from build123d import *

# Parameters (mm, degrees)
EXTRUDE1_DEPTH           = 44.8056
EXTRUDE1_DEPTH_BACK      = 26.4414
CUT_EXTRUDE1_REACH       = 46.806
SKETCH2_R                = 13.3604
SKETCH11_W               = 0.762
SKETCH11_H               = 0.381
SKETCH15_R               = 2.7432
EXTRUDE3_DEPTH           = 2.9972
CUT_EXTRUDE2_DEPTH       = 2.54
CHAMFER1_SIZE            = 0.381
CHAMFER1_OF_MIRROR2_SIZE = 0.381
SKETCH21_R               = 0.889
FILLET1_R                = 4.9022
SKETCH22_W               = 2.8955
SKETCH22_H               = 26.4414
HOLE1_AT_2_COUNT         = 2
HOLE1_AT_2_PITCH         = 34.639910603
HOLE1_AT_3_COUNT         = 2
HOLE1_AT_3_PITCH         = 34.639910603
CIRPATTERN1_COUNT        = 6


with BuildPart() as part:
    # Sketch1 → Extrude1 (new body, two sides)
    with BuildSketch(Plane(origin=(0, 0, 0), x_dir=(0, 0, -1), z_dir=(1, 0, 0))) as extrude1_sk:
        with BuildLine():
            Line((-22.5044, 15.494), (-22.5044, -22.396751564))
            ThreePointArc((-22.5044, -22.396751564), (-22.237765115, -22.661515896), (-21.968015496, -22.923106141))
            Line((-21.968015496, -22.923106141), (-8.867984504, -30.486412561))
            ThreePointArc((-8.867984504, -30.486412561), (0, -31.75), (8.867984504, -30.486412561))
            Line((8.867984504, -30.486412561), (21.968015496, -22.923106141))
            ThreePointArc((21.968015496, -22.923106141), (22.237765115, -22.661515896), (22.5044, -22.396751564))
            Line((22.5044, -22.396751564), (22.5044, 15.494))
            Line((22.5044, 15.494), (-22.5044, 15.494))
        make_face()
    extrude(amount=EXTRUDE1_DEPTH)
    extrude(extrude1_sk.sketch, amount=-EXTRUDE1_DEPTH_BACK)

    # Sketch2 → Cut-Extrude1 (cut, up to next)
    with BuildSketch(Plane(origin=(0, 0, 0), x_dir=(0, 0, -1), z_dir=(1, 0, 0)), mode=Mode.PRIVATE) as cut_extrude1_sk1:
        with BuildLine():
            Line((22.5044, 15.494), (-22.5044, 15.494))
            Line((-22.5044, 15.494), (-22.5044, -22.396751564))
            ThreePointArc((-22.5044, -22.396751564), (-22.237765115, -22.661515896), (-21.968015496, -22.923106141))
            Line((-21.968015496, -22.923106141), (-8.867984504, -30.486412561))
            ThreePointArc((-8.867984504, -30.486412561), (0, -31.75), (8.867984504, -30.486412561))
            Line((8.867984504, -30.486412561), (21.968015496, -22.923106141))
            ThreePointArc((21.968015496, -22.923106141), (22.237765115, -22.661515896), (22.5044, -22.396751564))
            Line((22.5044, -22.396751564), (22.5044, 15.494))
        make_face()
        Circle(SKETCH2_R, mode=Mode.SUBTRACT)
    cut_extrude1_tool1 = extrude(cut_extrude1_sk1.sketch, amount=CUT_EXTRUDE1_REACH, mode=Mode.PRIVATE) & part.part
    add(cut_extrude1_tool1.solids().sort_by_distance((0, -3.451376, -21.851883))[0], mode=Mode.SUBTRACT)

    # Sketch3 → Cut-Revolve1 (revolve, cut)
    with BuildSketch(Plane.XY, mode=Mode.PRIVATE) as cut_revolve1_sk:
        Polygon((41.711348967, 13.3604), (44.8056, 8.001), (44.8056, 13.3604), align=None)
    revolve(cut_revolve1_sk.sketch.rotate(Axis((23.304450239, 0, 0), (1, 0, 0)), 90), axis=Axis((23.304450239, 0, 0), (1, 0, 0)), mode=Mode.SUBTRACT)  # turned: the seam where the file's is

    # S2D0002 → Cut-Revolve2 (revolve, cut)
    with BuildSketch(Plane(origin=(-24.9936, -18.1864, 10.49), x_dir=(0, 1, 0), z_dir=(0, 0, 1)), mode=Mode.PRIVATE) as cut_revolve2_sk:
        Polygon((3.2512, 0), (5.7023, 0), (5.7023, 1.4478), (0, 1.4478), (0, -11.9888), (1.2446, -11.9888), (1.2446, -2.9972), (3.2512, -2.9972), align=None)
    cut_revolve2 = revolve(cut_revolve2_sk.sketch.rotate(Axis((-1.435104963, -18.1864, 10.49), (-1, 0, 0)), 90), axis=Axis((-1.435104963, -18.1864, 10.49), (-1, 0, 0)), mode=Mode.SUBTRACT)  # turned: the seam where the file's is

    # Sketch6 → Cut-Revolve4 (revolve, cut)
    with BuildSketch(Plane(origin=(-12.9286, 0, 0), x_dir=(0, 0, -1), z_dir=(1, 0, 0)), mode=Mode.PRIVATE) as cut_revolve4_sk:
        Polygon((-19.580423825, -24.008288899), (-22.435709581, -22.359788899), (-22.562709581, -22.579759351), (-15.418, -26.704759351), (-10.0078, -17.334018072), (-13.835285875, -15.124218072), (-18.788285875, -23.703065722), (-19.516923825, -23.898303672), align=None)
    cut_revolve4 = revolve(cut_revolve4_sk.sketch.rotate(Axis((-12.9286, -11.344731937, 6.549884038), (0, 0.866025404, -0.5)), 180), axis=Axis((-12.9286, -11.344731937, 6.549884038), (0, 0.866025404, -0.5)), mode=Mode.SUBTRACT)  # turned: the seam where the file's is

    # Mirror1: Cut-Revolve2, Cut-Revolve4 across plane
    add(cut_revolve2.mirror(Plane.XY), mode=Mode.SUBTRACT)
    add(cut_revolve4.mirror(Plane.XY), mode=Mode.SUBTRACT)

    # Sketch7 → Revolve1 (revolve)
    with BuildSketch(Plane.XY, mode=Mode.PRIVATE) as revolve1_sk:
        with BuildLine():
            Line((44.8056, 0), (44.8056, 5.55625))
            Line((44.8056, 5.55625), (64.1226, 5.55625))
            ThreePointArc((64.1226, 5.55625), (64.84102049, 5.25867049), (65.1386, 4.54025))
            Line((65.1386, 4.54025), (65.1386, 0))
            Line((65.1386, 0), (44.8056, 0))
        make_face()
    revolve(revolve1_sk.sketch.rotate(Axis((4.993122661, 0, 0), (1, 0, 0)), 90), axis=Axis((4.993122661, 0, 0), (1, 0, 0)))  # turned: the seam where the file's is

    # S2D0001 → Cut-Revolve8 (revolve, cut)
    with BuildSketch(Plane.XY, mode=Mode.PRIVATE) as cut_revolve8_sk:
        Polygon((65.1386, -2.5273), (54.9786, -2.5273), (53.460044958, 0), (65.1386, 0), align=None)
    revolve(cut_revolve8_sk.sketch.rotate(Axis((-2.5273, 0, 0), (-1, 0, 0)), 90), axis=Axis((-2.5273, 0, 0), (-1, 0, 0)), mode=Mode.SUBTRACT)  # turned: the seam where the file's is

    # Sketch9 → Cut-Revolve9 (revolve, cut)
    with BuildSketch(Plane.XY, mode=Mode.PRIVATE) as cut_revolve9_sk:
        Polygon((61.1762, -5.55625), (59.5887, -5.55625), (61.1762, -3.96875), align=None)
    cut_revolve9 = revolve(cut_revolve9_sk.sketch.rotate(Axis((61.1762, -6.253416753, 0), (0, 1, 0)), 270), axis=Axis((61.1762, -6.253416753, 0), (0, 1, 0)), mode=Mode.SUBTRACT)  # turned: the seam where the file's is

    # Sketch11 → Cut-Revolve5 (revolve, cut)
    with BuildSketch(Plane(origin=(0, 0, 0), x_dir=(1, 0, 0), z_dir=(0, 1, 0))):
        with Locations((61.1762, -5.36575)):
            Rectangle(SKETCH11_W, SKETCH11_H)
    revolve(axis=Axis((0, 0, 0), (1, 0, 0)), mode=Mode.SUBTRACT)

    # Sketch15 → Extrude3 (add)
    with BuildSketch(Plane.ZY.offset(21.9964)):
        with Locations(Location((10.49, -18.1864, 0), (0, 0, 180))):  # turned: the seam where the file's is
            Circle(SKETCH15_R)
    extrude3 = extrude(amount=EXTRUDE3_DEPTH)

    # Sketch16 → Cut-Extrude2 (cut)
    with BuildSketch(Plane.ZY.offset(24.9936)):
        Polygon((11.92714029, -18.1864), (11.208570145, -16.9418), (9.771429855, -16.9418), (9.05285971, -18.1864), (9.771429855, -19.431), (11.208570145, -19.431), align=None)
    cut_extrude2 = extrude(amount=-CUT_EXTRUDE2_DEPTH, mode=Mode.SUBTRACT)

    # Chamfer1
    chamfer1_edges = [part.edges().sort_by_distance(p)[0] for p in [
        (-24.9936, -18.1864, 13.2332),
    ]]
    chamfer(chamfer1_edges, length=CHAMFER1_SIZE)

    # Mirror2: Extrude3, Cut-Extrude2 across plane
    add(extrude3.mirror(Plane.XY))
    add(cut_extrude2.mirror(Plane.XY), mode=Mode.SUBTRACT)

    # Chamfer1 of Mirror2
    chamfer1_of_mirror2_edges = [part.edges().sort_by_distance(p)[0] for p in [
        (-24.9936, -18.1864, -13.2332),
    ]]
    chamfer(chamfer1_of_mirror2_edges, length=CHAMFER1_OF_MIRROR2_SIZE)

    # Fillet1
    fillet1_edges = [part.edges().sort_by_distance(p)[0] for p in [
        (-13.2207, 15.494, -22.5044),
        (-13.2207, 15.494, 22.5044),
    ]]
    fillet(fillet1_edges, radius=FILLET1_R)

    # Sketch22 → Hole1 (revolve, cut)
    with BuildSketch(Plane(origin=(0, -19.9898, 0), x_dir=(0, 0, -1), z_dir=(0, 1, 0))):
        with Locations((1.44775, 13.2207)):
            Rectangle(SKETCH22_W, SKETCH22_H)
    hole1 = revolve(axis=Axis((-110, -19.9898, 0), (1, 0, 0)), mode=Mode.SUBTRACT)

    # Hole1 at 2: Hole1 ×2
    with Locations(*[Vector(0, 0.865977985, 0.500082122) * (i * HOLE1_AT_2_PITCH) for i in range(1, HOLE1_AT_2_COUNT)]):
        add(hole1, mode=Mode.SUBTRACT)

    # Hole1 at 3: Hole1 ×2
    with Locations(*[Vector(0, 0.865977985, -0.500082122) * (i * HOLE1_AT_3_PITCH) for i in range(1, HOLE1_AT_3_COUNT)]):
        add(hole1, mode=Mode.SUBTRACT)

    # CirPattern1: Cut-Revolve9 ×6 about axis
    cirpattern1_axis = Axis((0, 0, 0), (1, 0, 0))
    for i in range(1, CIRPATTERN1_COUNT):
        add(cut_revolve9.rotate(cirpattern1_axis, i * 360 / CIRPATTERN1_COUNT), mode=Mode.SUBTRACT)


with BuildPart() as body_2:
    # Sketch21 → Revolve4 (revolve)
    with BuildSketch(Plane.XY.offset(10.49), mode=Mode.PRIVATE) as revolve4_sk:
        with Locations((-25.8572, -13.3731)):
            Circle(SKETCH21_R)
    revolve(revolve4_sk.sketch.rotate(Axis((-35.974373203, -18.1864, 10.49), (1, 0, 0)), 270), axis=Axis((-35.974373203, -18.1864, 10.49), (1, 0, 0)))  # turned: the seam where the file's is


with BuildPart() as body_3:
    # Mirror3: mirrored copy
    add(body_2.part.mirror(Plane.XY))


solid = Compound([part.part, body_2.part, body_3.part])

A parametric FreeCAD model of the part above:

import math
import FreeCAD as App
import Part
import Sketcher
Q = App.Units.Quantity


def edges_at(feature, points):
    """Names of the edges that pass closest to the given points."""
    edges = feature.Shape.Edges
    near = lambda p: min(range(len(edges)), key=lambda i: edges[i].distToShape(Part.Vertex(*p))[0])
    return sorted({f"Edge{near(p) + 1}" for p in points})

doc = App.newDocument("Part")
body = doc.addObject("PartDesign::Body", "Body")

sketch1 = body.newObject("Sketcher::SketchObject", "Sketch")
sketch1.AttachmentSupport = (doc.getObject("YZ_Plane"), [""])
sketch1.MapMode = "FlatFace"
sketch1.addGeometry([
    Part.LineSegment(App.Vector(15.494, 22.5044, 0), App.Vector(-22.396752, 22.5044, 0)),
    Part.ArcOfCircle(Part.Circle(App.Vector(-0.000005, 0.000005, 0), App.Vector(0, 0, 1), 31.749993), math.radians(134.862636), math.radians(136.218825)),
    Part.LineSegment(App.Vector(-22.923106, 21.968015, 0), App.Vector(-30.486413, 8.867985, 0)),
    Part.ArcOfCircle(Part.Circle(App.Vector(0, 0, 0), App.Vector(0, 0, 1), 31.75), math.radians(163.781175), math.radians(196.218825)),
    Part.LineSegment(App.Vector(-30.486413, -8.867985, 0), App.Vector(-22.923106, -21.968015, 0)),
    Part.ArcOfCircle(Part.Circle(App.Vector(-0.000005, -0.000005, 0), App.Vector(0, 0, 1), 31.749993), math.radians(-136.218825), math.radians(-134.862636)),
    Part.LineSegment(App.Vector(-22.396752, -22.5044, 0), App.Vector(15.494, -22.5044, 0)),
    Part.LineSegment(App.Vector(15.494, -22.5044, 0), App.Vector(15.494, 22.5044, 0)),
], False)
sketch1.addConstraint([
    Sketcher.Constraint("Coincident", 0, 2, 1, 1),
    Sketcher.Constraint("Coincident", 1, 2, 2, 1),
    Sketcher.Constraint("Coincident", 2, 2, 3, 1),
    Sketcher.Constraint("Coincident", 3, 2, 4, 1),
    Sketcher.Constraint("Coincident", 4, 2, 5, 1),
    Sketcher.Constraint("Coincident", 5, 2, 6, 1),
    Sketcher.Constraint("Coincident", 6, 2, 7, 1),
    Sketcher.Constraint("Coincident", 7, 2, 0, 1),
    Sketcher.Constraint("Horizontal", 0),
    Sketcher.Constraint("Horizontal", 6),
    Sketcher.Constraint("Vertical", 7),
    Sketcher.Constraint("Coincident", 1, 3, -1, 1),
    Sketcher.Constraint("Coincident", 3, 3, -1, 1),
    Sketcher.Constraint("Coincident", 5, 3, -1, 1),
    Sketcher.Constraint("Radius", 3, Q("1.25 in")),
    Sketcher.Constraint("DistanceY", 7, 1, 7, 2, Q("1.772 in")),
    Sketcher.Constraint("DistanceX", -1, 1, 6, 2, Q("0.61 in")),
    Sketcher.Constraint("DistanceY", -1, 1, 0, 2, Q("0.886 in")),
    Sketcher.Constraint("Radius", 1, 31.749993),
    Sketcher.Constraint("Radius", 5, 31.749993),
    Sketcher.Constraint("DistanceX", 1, 2, 1, 3, 22.923101),
    Sketcher.Constraint("DistanceY", 3, 2, 1, 2, 30.836),
    Sketcher.Constraint("DistanceX", 4, 2, 5, 3, 22.923101),
    Sketcher.Constraint("DistanceY", 4, 2, 2, 2, 30.836),
])
pad1 = body.newObject("PartDesign::Pad", "Pad")
pad1.Profile = sketch1
pad1.Type = "TwoLengths"
pad1.Length = Q("1.764 in")
pad1.Length2 = Q("1.041 in")

sketch2 = body.newObject("Sketcher::SketchObject", "Sketch001")
sketch2.AttachmentSupport = (doc.getObject("YZ_Plane"), [""])
sketch2.MapMode = "FlatFace"
sketch2.addGeometry([
    Part.LineSegment(App.Vector(15.494, -22.5044, 0), App.Vector(15.494, 22.5044, 0)),
    Part.LineSegment(App.Vector(15.494, 22.5044, 0), App.Vector(-22.396752, 22.5044, 0)),
    Part.ArcOfCircle(Part.Circle(App.Vector(-0.000005, 0.000005, 0), App.Vector(0, 0, 1), 31.749993), math.radians(134.862636), math.radians(136.218825)),
    Part.LineSegment(App.Vector(-22.923106, 21.968015, 0), App.Vector(-30.486413, 8.867985, 0)),
    Part.ArcOfCircle(Part.Circle(App.Vector(0, 0, 0), App.Vector(0, 0, 1), 31.75), math.radians(163.781175), math.radians(196.218825)),
    Part.LineSegment(App.Vector(-30.486413, -8.867985, 0), App.Vector(-22.923106, -21.968015, 0)),
    Part.ArcOfCircle(Part.Circle(App.Vector(-0.000005, -0.000005, 0), App.Vector(0, 0, 1), 31.749993), math.radians(-136.218825), math.radians(-134.862636)),
    Part.LineSegment(App.Vector(-22.396752, -22.5044, 0), App.Vector(15.494, -22.5044, 0)),
    Part.Circle(App.Vector(0, 0, 0), App.Vector(0, 0, 1), 13.3604),
], False)
sketch2.addConstraint([
    Sketcher.Constraint("Coincident", 0, 2, 1, 1),
    Sketcher.Constraint("Coincident", 1, 2, 2, 1),
    Sketcher.Constraint("Coincident", 2, 2, 3, 1),
    Sketcher.Constraint("Coincident", 3, 2, 4, 1),
    Sketcher.Constraint("Coincident", 4, 2, 5, 1),
    Sketcher.Constraint("Coincident", 5, 2, 6, 1),
    Sketcher.Constraint("Coincident", 6, 2, 7, 1),
    Sketcher.Constraint("Coincident", 7, 2, 0, 1),
    Sketcher.Constraint("Vertical", 0),
    Sketcher.Constraint("Horizontal", 1),
    Sketcher.Constraint("Horizontal", 7),
    Sketcher.Constraint("Coincident", 2, 3, -1, 1),
    Sketcher.Constraint("Coincident", 4, 3, -1, 1),
    Sketcher.Constraint("Coincident", 6, 3, -1, 1),
    Sketcher.Constraint("Coincident", 8, 3, -1, 1),
    Sketcher.Constraint("Radius", 4, Q("1.25 in")),
    Sketcher.Constraint("Diameter", 8, Q("1.052 in")),
    Sketcher.Constraint("DistanceY", 0, 1, 0, 2, Q("1.772 in")),
    Sketcher.Constraint("DistanceX", -1, 1, 0, 2, Q("0.61 in")),
    Sketcher.Constraint("DistanceY", -1, 1, 0, 2, Q("0.886 in")),
    Sketcher.Constraint("Radius", 2, 31.749993),
    Sketcher.Constraint("Radius", 6, 31.749993),
    Sketcher.Constraint("DistanceX", 2, 2, 2, 3, 22.923101),
    Sketcher.Constraint("DistanceY", 4, 2, 2, 2, 30.836),
    Sketcher.Constraint("DistanceX", 5, 2, 6, 3, 22.923101),
    Sketcher.Constraint("DistanceY", 5, 2, 3, 2, 30.836),
])
pocket1 = body.newObject("PartDesign::Pocket", "Pocket")
pocket1.Profile = sketch2
pocket1.Type = "UpToFirst"
pocket1.Reversed = True

sketch3 = body.newObject("Sketcher::SketchObject", "Sketch002")
sketch3.AttachmentSupport = (doc.getObject("XY_Plane"), [""])
sketch3.MapMode = "FlatFace"
sketch3.addGeometry([
    Part.LineSegment(App.Vector(41.7, 13.4, 0), App.Vector(44.8, 8, 0)),
    Part.LineSegment(App.Vector(44.8, 8, 0), App.Vector(44.8, 13.4, 0)),
    Part.LineSegment(App.Vector(44.8, 13.4, 0), App.Vector(41.7, 13.4, 0)),
], False)
sketch3.addConstraint([
    Sketcher.Constraint("Coincident", 0, 2, 1, 1),
    Sketcher.Constraint("Coincident", 1, 2, 2, 1),
    Sketcher.Constraint("Coincident", 2, 2, 0, 1),
    Sketcher.Constraint("Vertical", 1),
    Sketcher.Constraint("Horizontal", 2),
    Sketcher.Constraint("Angle", 0, Q("-60 deg")),
    Sketcher.Constraint("DistanceY", 1, 1, 1, 2, Q("0.211 in")),
    Sketcher.Constraint("DistanceX", -1, 1, 0, 2, Q("1.764 in")),
    Sketcher.Constraint("DistanceY", -1, 1, 0, 2, Q("0.315 in")),
])
groove = body.newObject("PartDesign::Groove", "Groove")
groove.Profile = sketch3
groove.ReferenceAxis = (sketch3, ["H_Axis"])
groove.Angle = 360

sketch4 = body.newObject("Sketcher::SketchObject", "Sketch003")
sketch4.AttachmentSupport = (doc.getObject("XY_Plane"), [""])
sketch4.MapMode = "FlatFace"
sketch4.AttachmentOffset = App.Placement(App.Vector(0, 0, 10.49), App.Rotation())
sketch4.addGeometry([
    Part.LineSegment(App.Vector(-25, -14.9, 0), App.Vector(-25, -12.5, 0)),
    Part.LineSegment(App.Vector(-25, -12.5, 0), App.Vector(-26.4, -12.5, 0)),
    Part.LineSegment(App.Vector(-26.4, -12.5, 0), App.Vector(-26.4, -18.2, 0)),
    Part.LineSegment(App.Vector(-26.4, -18.2, 0), App.Vector(-13, -18.2, 0)),
    Part.LineSegment(App.Vector(-13, -18.2, 0), App.Vector(-13, -16.9, 0)),
    Part.LineSegment(App.Vector(-13, -16.9, 0), App.Vector(-22, -16.9, 0)),
    Part.LineSegment(App.Vector(-22, -16.9, 0), App.Vector(-22, -14.9, 0)),
    Part.LineSegment(App.Vector(-22, -14.9, 0), App.Vector(-25, -14.9, 0)),
], False)
sketch4.addGeometry(Part.LineSegment(App.Vector(-13, -18.2, 0), App.Vector(-26.4, -18.2, 0)), True)
sketch4.addConstraint([
    Sketcher.Constraint("Coincident", 0, 2, 1, 1),
    Sketcher.Constraint("Coincident", 1, 2, 2, 1),
    Sketcher.Constraint("Coincident", 2, 2, 3, 1),
    Sketcher.Constraint("Coincident", 3, 2, 4, 1),
    Sketcher.Constraint("Coincident", 4, 2, 5, 1),
    Sketcher.Constraint("Coincident", 5, 2, 6, 1),
    Sketcher.Constraint("Coincident", 6, 2, 7, 1),
    Sketcher.Constraint("Coincident", 7, 2, 0, 1),
    Sketcher.Constraint("Vertical", 0),
    Sketcher.Constraint("Horizontal", 1),
    Sketcher.Constraint("Vertical", 2),
    Sketcher.Constraint("Horizontal", 3),
    Sketcher.Constraint("Vertical", 4),
    Sketcher.Constraint("Horizontal", 5),
    Sketcher.Constraint("Vertical", 6),
    Sketcher.Constraint("Horizontal", 7),
    Sketcher.Constraint("Horizontal", 8),
    Sketcher.Constraint("Coincident", 8, 1, 3, 2),
    Sketcher.Constraint("Vertical", 1, 2, 8, 2),
    Sketcher.Constraint("DistanceX", 1, 2, 1, 1, Q("0.057 in")),
    Sketcher.Constraint("DistanceX", 3, 1, 3, 2, Q("0.529 in")),
    Sketcher.Constraint("DistanceX", 5, 2, 5, 1, Q("0.354 in")),
    Sketcher.Constraint("DistanceY", 4, 1, 4, 2, Q("0.049 in")),
    Sketcher.Constraint("DistanceY", 6, 1, 6, 2, Q("0.079 in")),
    Sketcher.Constraint("DistanceY", 0, 1, 0, 2, Q("0.0965 in")),
    Sketcher.Constraint("DistanceX", 0, 2, -1, 1, Q("0.984 in")),
    Sketcher.Constraint("DistanceY", 2, 2, -1, 1, Q("0.716 in")),
])
groove2 = body.newObject("PartDesign::Groove", "Groove001")
groove2.Profile = sketch4
groove2.ReferenceAxis = (sketch4, ["Axis0"])
groove2.Angle = 360

sketch5 = body.newObject("Sketcher::SketchObject", "Sketch004")
sketch5.AttachmentSupport = (doc.getObject("YZ_Plane"), [""])
sketch5.MapMode = "FlatFace"
sketch5.AttachmentOffset = App.Placement(App.Vector(0, 0, -0.509 * 25.4), App.Rotation())
sketch5.addGeometry([
    Part.LineSegment(App.Vector(-24.01, 19.58, 0), App.Vector(-22.36, 22.44, 0)),
    Part.LineSegment(App.Vector(-22.36, 22.44, 0), App.Vector(-22.58, 22.56, 0)),
    Part.LineSegment(App.Vector(-22.58, 22.56, 0), App.Vector(-26.7, 15.42, 0)),
    Part.LineSegment(App.Vector(-26.7, 15.42, 0), App.Vector(-17.33, 10.01, 0)),
    Part.LineSegment(App.Vector(-17.33, 10.01, 0), App.Vector(-15.12, 13.84, 0)),
    Part.LineSegment(App.Vector(-15.12, 13.84, 0), App.Vector(-23.7, 18.79, 0)),
    Part.LineSegment(App.Vector(-23.7, 18.79, 0), App.Vector(-23.9, 19.52, 0)),
    Part.LineSegment(App.Vector(-23.9, 19.52, 0), App.Vector(-24.01, 19.58, 0)),
], False)
sketch5.addGeometry(Part.LineSegment(App.Vector(-26.7, 15.42, 0), App.Vector(-17.33, 10.01, 0)), True)
sketch5.addConstraint([
    Sketcher.Constraint("Coincident", 0, 2, 1, 1),
    Sketcher.Constraint("Coincident", 1, 2, 2, 1),
    Sketcher.Constraint("Coincident", 2, 2, 3, 1),
    Sketcher.Constraint("Coincident", 3, 2, 4, 1),
    Sketcher.Constraint("Coincident", 4, 2, 5, 1),
    Sketcher.Constraint("Coincident", 5, 2, 6, 1),
    Sketcher.Constraint("Coincident", 6, 2, 7, 1),
    Sketcher.Constraint("Coincident", 7, 2, 0, 1),
    Sketcher.Constraint("Coincident", 8, 1, 2, 2),
    Sketcher.Constraint("Coincident", 8, 2, 3, 2),
    Sketcher.Constraint("Perpendicular", 0, 1),
    Sketcher.Constraint("Perpendicular", 1, 2),
    Sketcher.Constraint("Perpendicular", 2, 3),
    Sketcher.Constraint("Perpendicular", 3, 4),
    Sketcher.Constraint("Perpendicular", 4, 5),
    Sketcher.Constraint("Parallel", 5, 7),
    Sketcher.Constraint("Angle", 0, Q("60 deg")),
    Sketcher.Constraint("Angle", 6, Q("105 deg")),
    Sketcher.Constraint("Distance", 1, Q("0.01 in")),
    Sketcher.Constraint("Distance", 5, Q("0.39 in")),
    Sketcher.Constraint("Distance", 3, Q("0.426 in")),
    Sketcher.Constraint("Distance", 4, Q("0.174 in")),
    Sketcher.Constraint("Distance", 7, Q("0.005 in")),
    Sketcher.Constraint("Distance", 0, 3.297),
    Sketcher.Constraint("DistanceY", -1, 1, 2, 2, 15.418),
    Sketcher.Constraint("DistanceX", 0, 2, -1, 1, 22.359789),
])
groove3 = body.newObject("PartDesign::Groove", "Groove002")
groove3.Profile = sketch5
groove3.ReferenceAxis = (sketch5, ["Axis0"])
groove3.Angle = 360
doc.recompute()

mirrored = body.newObject("PartDesign::Mirrored", "Mirrored")
mirrored.Originals = [groove2, groove3]
mirrored.MirrorPlane = (doc.getObject("XY_Plane"), [""])
body.Tip = mirrored

sketch6 = body.newObject("Sketcher::SketchObject", "Sketch005")
sketch6.AttachmentSupport = (doc.getObject("XY_Plane"), [""])
sketch6.MapMode = "FlatFace"
sketch6.addGeometry([
    Part.LineSegment(App.Vector(44.8, 5.6, 0), App.Vector(44.8, 0, 0)),
    Part.LineSegment(App.Vector(44.8, 0, 0), App.Vector(65.1, 0, 0)),
    Part.LineSegment(App.Vector(65.1, 0, 0), App.Vector(65.1, 4.5, 0)),
    Part.ArcOfCircle(Part.Circle(App.Vector(64.1, 4.5, 0), App.Vector(0, 0, 1), 1), math.radians(0), math.radians(90)),
    Part.LineSegment(App.Vector(64.1, 5.6, 0), App.Vector(44.8, 5.6, 0)),
], False)
sketch6.addConstraint([
    Sketcher.Constraint("Coincident", 0, 2, 1, 1),
    Sketcher.Constraint("Coincident", 1, 2, 2, 1),
    Sketcher.Constraint("Tangent", 2, 2, 3, 1),
    Sketcher.Constraint("Tangent", 3, 2, 4, 1),
    Sketcher.Constraint("Coincident", 4, 2, 0, 1),
    Sketcher.Constraint("Vertical", 0),
    Sketcher.Constraint("Horizontal", 1),
    Sketcher.Constraint("Vertical", 2),
    Sketcher.Constraint("Horizontal", 4),
    Sketcher.Constraint("PointOnObject", 0, 2, -1),
    Sketcher.Constraint("Radius", 3, Q("0.04 in")),
    Sketcher.Constraint("DistanceY", 0, 2, 0, 1, Q("0.21875 in")),
    Sketcher.Constraint("DistanceX", -1, 1, 0, 2, Q("1.764 in")),
    Sketcher.Constraint("DistanceX", 1, 1, 1, 2, 20.333),
])
revolution = body.newObject("PartDesign::Revolution", "Revolution")
revolution.Profile = sketch6
revolution.ReferenceAxis = (sketch6, ["H_Axis"])
revolution.Angle = 360

sketch7 = body.newObject("Sketcher::SketchObject", "Sketch006")
sketch7.AttachmentSupport = (doc.getObject("XY_Plane"), [""])
sketch7.MapMode = "FlatFace"
sketch7.addGeometry([
    Part.LineSegment(App.Vector(55, -2.5, 0), App.Vector(65.1, -2.5, 0)),
    Part.LineSegment(App.Vector(65.1, -2.5, 0), App.Vector(65.1, 0, 0)),
    Part.LineSegment(App.Vector(65.1, 0, 0), App.Vector(53.5, 0, 0)),
    Part.LineSegment(App.Vector(53.5, 0, 0), App.Vector(55, -2.5, 0)),
], False)
sketch7.addConstraint([
    Sketcher.Constraint("Coincident", 0, 2, 1, 1),
    Sketcher.Constraint("Coincident", 1, 2, 2, 1),
    Sketcher.Constraint("Coincident", 2, 2, 3, 1),
    Sketcher.Constraint("Coincident", 3, 2, 0, 1),
    Sketcher.Constraint("Horizontal", 0),
    Sketcher.Constraint("Vertical", 1),
    Sketcher.Constraint("Horizontal", 2),
    Sketcher.Constraint("PointOnObject", 1, 2, -1),
    Sketcher.Constraint("DistanceX", 0, 1, 0, 2, Q("0.4 in")),
    Sketcher.Constraint("Angle", 3, Q("-59 deg")),
    Sketcher.Constraint("DistanceY", 1, 1, 1, 2, Q("0.0995 in")),
    Sketcher.Constraint("DistanceX", -1, 1, 0, 2, 65.1386),
])
groove4 = body.newObject("PartDesign::Groove", "Groove003")
groove4.Profile = sketch7
groove4.ReferenceAxis = (sketch7, ["H_Axis"])
groove4.Angle = 360

sketch8 = body.newObject("Sketcher::SketchObject", "Sketch007")
sketch8.AttachmentSupport = (doc.getObject("XY_Plane"), [""])
sketch8.MapMode = "FlatFace"
sketch8.addGeometry([
    Part.LineSegment(App.Vector(59.6, -5.6, 0), App.Vector(61.2, -5.6, 0)),
    Part.LineSegment(App.Vector(61.2, -5.6, 0), App.Vector(61.2, -4, 0)),
    Part.LineSegment(App.Vector(61.2, -4, 0), App.Vector(59.6, -5.6, 0)),
], False)
sketch8.addGeometry(Part.LineSegment(App.Vector(61.2, -5.6, 0), App.Vector(61.2, -4, 0)), True)
sketch8.addConstraint([
    Sketcher.Constraint("Coincident", 0, 2, 1, 1),
    Sketcher.Constraint("Coincident", 1, 2, 2, 1),
    Sketcher.Constraint("Coincident", 2, 2, 0, 1),
    Sketcher.Constraint("Horizontal", 0),
    Sketcher.Constraint("Vertical", 1),
    Sketcher.Constraint("Vertical", 3),
    Sketcher.Constraint("Coincident", 3, 1, 0, 2),
    Sketcher.Constraint("Equal", 0, 1),
    Sketcher.Constraint("Equal", 1, 3),
    Sketcher.Constraint("DistanceX", 0, 1, 0, 2, Q("0.0625 in")),
    Sketcher.Constraint("DistanceY", 0, 2, -1, 1, Q("0.21875 in")),
    Sketcher.Constraint("DistanceX", -1, 1, 0, 2, 61.1762),
])
groove5 = body.newObject("PartDesign::Groove", "Groove004")
groove5.Profile = sketch8
groove5.ReferenceAxis = (sketch8, ["Axis0"])
groove5.Angle = 360

sketch9 = body.newObject("Sketcher::SketchObject", "Sketch008")
sketch9.AttachmentSupport = (doc.getObject("XZ_Plane"), [""])
sketch9.MapMode = "FlatFace"
sketch9.addGeometry([
    Part.LineSegment(App.Vector(60.8, 5.18, 0), App.Vector(60.8, 5.56, 0)),
    Part.LineSegment(App.Vector(60.8, 5.56, 0), App.Vector(61.56, 5.56, 0)),
    Part.LineSegment(App.Vector(61.56, 5.56, 0), App.Vector(61.56, 5.18, 0)),
    Part.LineSegment(App.Vector(61.56, 5.18, 0), App.Vector(60.8, 5.18, 0)),
], False)
sketch9.addConstraint([
    Sketcher.Constraint("Coincident", 0, 2, 1, 1),
    Sketcher.Constraint("Coincident", 1, 2, 2, 1),
    Sketcher.Constraint("Coincident", 2, 2, 3, 1),
    Sketcher.Constraint("Coincident", 3, 2, 0, 1),
    Sketcher.Constraint("Vertical", 0),
    Sketcher.Constraint("Horizontal", 1),
    Sketcher.Constraint("Vertical", 2),
    Sketcher.Constraint("Horizontal", 3),
    Sketcher.Constraint("DistanceX", 1, 1, 1, 2, Q("0.03 in")),
    Sketcher.Constraint("DistanceY", 0, 1, 0, 2, Q("0.015 in")),
    Sketcher.Constraint("DistanceY", -1, 1, 0, 2, Q("0.21875 in")),
    Sketcher.Constraint("DistanceX", -1, 1, 0, 2, 60.7952),
])
groove6 = body.newObject("PartDesign::Groove", "Groove005")
groove6.Profile = sketch9
groove6.ReferenceAxis = (sketch9, ["H_Axis"])
groove6.Angle = 360

sketch10 = body.newObject("Sketcher::SketchObject", "Sketch009")
sketch10.AttachmentSupport = (doc.getObject("YZ_Plane"), [""])
sketch10.MapMode = "FlatFace"
sketch10.AttachmentOffset = App.Placement(App.Vector(0, 0, -0.866 * 25.4), App.Rotation())
sketch10.addGeometry(Part.Circle(App.Vector(-18.2, 10.5, 0), App.Vector(0, 0, 1), 2.7), False)
sketch10.addConstraint([
    Sketcher.Constraint("Diameter", 0, Q("0.216 in")),
    Sketcher.Constraint("DistanceX", 0, 3, -1, 1, Q("0.716 in")),
    Sketcher.Constraint("DistanceY", -1, 1, 0, 3, 10.49),
])
pad2 = body.newObject("PartDesign::Pad", "Pad001")
pad2.Profile = sketch10
pad2.Length = Q("0.118 in")
pad2.Reversed = True

sketch11 = body.newObject("Sketcher::SketchObject", "Sketch010")
sketch11.AttachmentSupport = (doc.getObject("YZ_Plane"), [""])
sketch11.MapMode = "FlatFace"
sketch11.AttachmentOffset = App.Placement(App.Vector(0, 0, -0.984 * 25.4), App.Rotation())
sketch11.addGeometry([
    Part.LineSegment(App.Vector(-18.2, 11.9, 0), App.Vector(-16.9, 11.2, 0)),
    Part.LineSegment(App.Vector(-16.9, 11.2, 0), App.Vector(-16.9, 9.8, 0)),
    Part.LineSegment(App.Vector(-16.9, 9.8, 0), App.Vector(-18.2, 9.1, 0)),
    Part.LineSegment(App.Vector(-18.2, 9.1, 0), App.Vector(-19.4, 9.8, 0)),
    Part.LineSegment(App.Vector(-19.4, 9.8, 0), App.Vector(-19.4, 11.2, 0)),
    Part.LineSegment(App.Vector(-19.4, 11.2, 0), App.Vector(-18.2, 11.9, 0)),
], False)
sketch11.addConstraint([
    Sketcher.Constraint("Coincident", 0, 2, 1, 1),
    Sketcher.Constraint("Coincident", 1, 2, 2, 1),
    Sketcher.Constraint("Coincident", 2, 2, 3, 1),
    Sketcher.Constraint("Coincident", 3, 2, 4, 1),
    Sketcher.Constraint("Coincident", 4, 2, 5, 1),
    Sketcher.Constraint("Coincident", 5, 2, 0, 1),
    Sketcher.Constraint("Vertical", 1),
    Sketcher.Constraint("Vertical", 4),
    Sketcher.Constraint("Parallel", 0, 3),
    Sketcher.Constraint("Parallel", 2, 5),
    Sketcher.Constraint("Horizontal", 1, 2, 3, 2),
    Sketcher.Constraint("Horizontal", 0, 2, 4, 2),
    Sketcher.Constraint("Vertical", 2, 2, 5, 2),
    Sketcher.Constraint("Angle", 0, Q("-30 deg")),
    Sketcher.Constraint("DistanceX", 0, 2, -1, 1, Q("0.667 in")),
    Sketcher.Constraint("DistanceX", 2, 2, -1, 1, Q("0.716 in")),
    Sketcher.Constraint("DistanceY", 1, 2, 1, 1, 1.43714),
    Sketcher.Constraint("DistanceY", -1, 1, 0, 2, 11.20857),
])
pocket2 = body.newObject("PartDesign::Pocket", "Pocket001")
pocket2.Profile = sketch11
pocket2.Length = Q("0.1 in")
pocket2.Reversed = True
doc.recompute()

chamfer = body.newObject("PartDesign::Chamfer", "Chamfer")
chamfer.Base = (pocket2, edges_at(pocket2, [(-24.994, -18.186, 13.233)]))
chamfer.Size = Q("0.015 in")
doc.recompute()

mirrored2 = body.newObject("PartDesign::Mirrored", "Mirrored001")
mirrored2.Originals = [pad2, pocket2]
mirrored2.MirrorPlane = (doc.getObject("XY_Plane"), [""])
body.Tip = mirrored2
doc.recompute()

chamfer2 = body.newObject("PartDesign::Chamfer", "Chamfer001")
chamfer2.Base = (mirrored2, edges_at(mirrored2, [(-24.994, -18.186, -13.233)]))
chamfer2.Size = Q("0.015 in")
doc.recompute()

fillet = body.newObject("PartDesign::Fillet", "Fillet")
fillet.Base = (chamfer2, edges_at(chamfer2, [(-13.221, 15.494, -22.504), (-13.221, 15.494, 22.504)]))
fillet.Radius = Q("0.193 in")

sketch12 = body.newObject("Sketcher::SketchObject", "Sketch011")
sketch12.AttachmentSupport = (doc.getObject("XZ_Plane"), [""])
sketch12.MapMode = "FlatFace"
sketch12.AttachmentOffset = App.Placement(App.Vector(0, 0, 0.787 * 25.4), App.Rotation())
sketch12.addGeometry([
    Part.LineSegment(App.Vector(-26.4, 0, 0), App.Vector(0, 0, 0)),
    Part.LineSegment(App.Vector(0, 0, 0), App.Vector(0, -2.9, 0)),
    Part.LineSegment(App.Vector(0, -2.9, 0), App.Vector(-26.4, -2.9, 0)),
    Part.LineSegment(App.Vector(-26.4, -2.9, 0), App.Vector(-26.4, 0, 0)),
], False)
sketch12.addConstraint([
    Sketcher.Constraint("Coincident", 0, 2, 1, 1),
    Sketcher.Constraint("Coincident", 1, 2, 2, 1),
    Sketcher.Constraint("Coincident", 2, 2, 3, 1),
    Sketcher.Constraint("Coincident", 3, 2, 0, 1),
    Sketcher.Constraint("Horizontal", 0),
    Sketcher.Constraint("Vertical", 1),
    Sketcher.Constraint("Horizontal", 2),
    Sketcher.Constraint("Vertical", 3),
    Sketcher.Constraint("Coincident", 0, 2, -1, 1),
    Sketcher.Constraint("DistanceX", 0, 1, 0, 2, Q("1.041 in")),
    Sketcher.Constraint("DistanceY", 1, 2, 1, 1, 2.8955),
])
groove7 = body.newObject("PartDesign::Groove", "Groove006")
groove7.Profile = sketch12
groove7.ReferenceAxis = (sketch12, ["H_Axis"])
groove7.Angle = 360
doc.recompute()

datumline = body.newObject("PartDesign::Line", "DatumLine")
datumline.Placement = App.Placement(App.Vector(0, 0, 0), App.Rotation(App.Vector(0, 0, 1), App.Vector(0, 0.865977985, 0.500082122)))
linearpattern = body.newObject("PartDesign::LinearPattern", "LinearPattern")
linearpattern.Originals = [groove7]
linearpattern.Direction = (datumline, [""])
linearpattern.Mode = "offset"
linearpattern.Offset = 34.639911
linearpattern.Occurrences = 2
body.Tip = linearpattern
doc.recompute()

datumline2 = body.newObject("PartDesign::Line", "DatumLine001")
datumline2.Placement = App.Placement(App.Vector(0, 0, 0), App.Rotation(App.Vector(0, 0, 1), App.Vector(0, 0.865977985, -0.500082122)))
linearpattern2 = body.newObject("PartDesign::LinearPattern", "LinearPattern001")
linearpattern2.Originals = [groove7]
linearpattern2.Direction = (datumline2, [""])
linearpattern2.Mode = "offset"
linearpattern2.Offset = 34.639911
linearpattern2.Occurrences = 2
body.Tip = linearpattern2
doc.recompute()

polarpattern = body.newObject("PartDesign::PolarPattern", "PolarPattern")
polarpattern.Originals = [groove5]
polarpattern.Axis = (doc.getObject("X_Axis"), [""])
polarpattern.Angle = 360
polarpattern.Occurrences = 6
body.Tip = polarpattern
body2 = doc.addObject("PartDesign::Body", "Body001")

sketch13 = body2.newObject("Sketcher::SketchObject", "Sketch012")
sketch13.AttachmentSupport = (doc.getObject("XY_Plane001"), [""])
sketch13.MapMode = "FlatFace"
sketch13.AttachmentOffset = App.Placement(App.Vector(0, 0, 10.49), App.Rotation())
sketch13.addGeometry(Part.Circle(App.Vector(-25.9, -13.4, 0), App.Vector(0, 0, 1), 0.9), False)
sketch13.addGeometry(Part.LineSegment(App.Vector(-25.9, -18.2, 0), App.Vector(-15.9, -18.2, 0)), True)
sketch13.addConstraint([
    Sketcher.Constraint("Horizontal", 1),
    Sketcher.Constraint("Vertical", 0, 3, 1, 1),
    Sketcher.Constraint("Diameter", 0, Q("0.07 in")),
    Sketcher.Constraint("DistanceX", 0, 3, -1, 1, Q("1.018 in")),
    Sketcher.Constraint("DistanceY", 1, 1, -1, 1, Q("0.716 in")),
    Sketcher.Constraint("DistanceX", 1, 1, 1, 2, 10.0),
    Sketcher.Constraint("DistanceY", 0, 3, -1, 1, Q("0.5265 in")),
])
revolution2 = body2.newObject("PartDesign::Revolution", "Revolution001")
revolution2.Profile = sketch13
revolution2.ReferenceAxis = (sketch13, ["Axis0"])
revolution2.Angle = 360
body3 = doc.addObject("PartDesign::Body", "Body002")
doc.recompute()

mirroring = doc.addObject("Part::Mirroring", "Mirroring")
mirroring.Source = body2
mirroring.Base = App.Vector(0, 0, 0)
mirroring.Normal = App.Vector(0, 0, 1)
body3.BaseFeature = mirroring
doc.recompute()
mirroring.Visibility = False

doc.recompute()
